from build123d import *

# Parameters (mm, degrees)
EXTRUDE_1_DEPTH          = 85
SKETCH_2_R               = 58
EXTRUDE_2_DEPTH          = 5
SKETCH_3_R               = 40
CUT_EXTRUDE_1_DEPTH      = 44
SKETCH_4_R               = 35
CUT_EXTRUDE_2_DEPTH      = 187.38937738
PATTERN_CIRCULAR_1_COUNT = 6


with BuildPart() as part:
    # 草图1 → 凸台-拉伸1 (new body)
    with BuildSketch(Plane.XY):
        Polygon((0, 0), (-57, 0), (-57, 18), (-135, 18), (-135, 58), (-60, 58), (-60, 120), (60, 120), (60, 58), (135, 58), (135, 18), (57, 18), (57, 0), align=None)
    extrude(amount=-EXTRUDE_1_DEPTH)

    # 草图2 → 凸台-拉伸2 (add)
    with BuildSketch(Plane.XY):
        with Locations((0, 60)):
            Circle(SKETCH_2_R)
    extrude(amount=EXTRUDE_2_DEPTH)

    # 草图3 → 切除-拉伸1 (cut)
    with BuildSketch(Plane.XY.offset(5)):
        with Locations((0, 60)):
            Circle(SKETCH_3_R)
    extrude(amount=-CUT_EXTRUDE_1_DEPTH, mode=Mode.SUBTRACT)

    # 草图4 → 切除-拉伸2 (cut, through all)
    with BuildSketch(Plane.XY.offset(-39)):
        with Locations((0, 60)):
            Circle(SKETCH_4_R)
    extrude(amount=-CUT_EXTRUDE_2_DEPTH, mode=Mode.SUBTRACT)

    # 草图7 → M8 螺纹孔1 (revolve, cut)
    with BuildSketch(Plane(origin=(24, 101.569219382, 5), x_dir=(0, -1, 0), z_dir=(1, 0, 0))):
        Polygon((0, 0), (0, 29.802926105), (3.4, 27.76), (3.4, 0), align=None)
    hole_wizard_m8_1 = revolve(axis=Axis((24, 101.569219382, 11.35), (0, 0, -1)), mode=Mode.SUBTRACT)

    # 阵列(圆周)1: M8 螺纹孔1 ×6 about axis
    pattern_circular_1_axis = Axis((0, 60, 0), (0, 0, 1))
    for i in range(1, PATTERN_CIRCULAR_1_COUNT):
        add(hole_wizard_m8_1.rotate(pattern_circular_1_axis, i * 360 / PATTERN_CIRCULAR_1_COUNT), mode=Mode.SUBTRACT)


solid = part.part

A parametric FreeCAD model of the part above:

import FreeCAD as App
import Part
import Sketcher

V = App.Vector
Q = App.Units.Quantity


def add_polygon(sketch, points):
    """Adds a closed chain of lines whose ends are joined by coincident constraints."""
    first, n = sketch.GeometryCount, len(points)
    for a, b in zip(points, points[1:] + points[:1]):
        sketch.addGeometry(Part.LineSegment(App.Vector(*a, 0), App.Vector(*b, 0)), False)
    for i in range(n):
        sketch.addConstraint(Sketcher.Constraint("Coincident", first + i, 2, first + (i + 1) % n, 1))

doc = App.newDocument("Part")
body = doc.addObject("PartDesign::Body", "Body")

# Sketch on XY plane
sketch1 = body.newObject("Sketcher::SketchObject", "Sketch")
sketch1.AttachmentSupport = (doc.getObject("XY_Plane"), [""])
sketch1.MapMode = "FlatFace"
add_polygon(sketch1, [(-57, 0), (57, 0), (57, 18), (135, 18), (135, 58), (60, 58), (60, 120), (-60, 120), (-60, 58), (-135, 58), (-135, 18), (-57, 18)])  # lines 0-11
sketch1.addConstraint([
    Sketcher.Constraint("Horizontal", 0),
    Sketcher.Constraint("Vertical", 1),
    Sketcher.Constraint("Horizontal", 2),
    Sketcher.Constraint("Vertical", 3),
    Sketcher.Constraint("Horizontal", 4),
    Sketcher.Constraint("Vertical", 5),
    Sketcher.Constraint("Horizontal", 6),
    Sketcher.Constraint("Vertical", 7),
    Sketcher.Constraint("Horizontal", 8),
    Sketcher.Constraint("Vertical", 9),
    Sketcher.Constraint("Horizontal", 10),
    Sketcher.Constraint("Vertical", 11),
    Sketcher.Constraint("Symmetric", 0, 2, 11, 2, -1, 1),
    Sketcher.Constraint("Symmetric", 4, 2, 7, 2, -2),
    Sketcher.Constraint("Symmetric", 2, 2, 9, 2, -2),
    Sketcher.Constraint("DistanceX", 0, 1, 0, 2, Q("114 mm")),
    Sketcher.Constraint("DistanceX", 2, 1, 2, 2, Q("78 mm")),
    Sketcher.Constraint("DistanceX", 4, 2, 4, 1, Q("75 mm")),
    Sketcher.Constraint("DistanceY", 1, 1, 1, 2, Q("18 mm")),
    Sketcher.Constraint("DistanceY", 3, 1, 3, 2, Q("40 mm")),
    Sketcher.Constraint("DistanceY", 5, 1, 5, 2, Q("62 mm")),
])
pad1 = body.newObject("PartDesign::Pad", "Pad")
pad1.Profile = sketch1
pad1.Length = 85
pad1.Reversed = True

# Sketch on XY plane
sketch2 = body.newObject("Sketcher::SketchObject", "Sketch001")
sketch2.AttachmentSupport = (doc.getObject("XY_Plane"), [""])
sketch2.MapMode = "FlatFace"
sketch2.addGeometry(Part.Circle(V(0, 60, 0), V(0, 0, 1), 58), False)
sketch2.addConstraint([
    Sketcher.Constraint("PointOnObject", 0, 3, -2),
    Sketcher.Constraint("Diameter", 0, Q("116 mm")),
    Sketcher.Constraint("DistanceY", -1, 1, 0, 3, Q("60 mm")),
])
pad2 = body.newObject("PartDesign::Pad", "Pad001")
pad2.Profile = sketch2
pad2.Length = 5

# Sketch on XY plane
sketch3 = body.newObject("Sketcher::SketchObject", "Sketch002")
sketch3.AttachmentSupport = (doc.getObject("XY_Plane"), [""])
sketch3.MapMode = "FlatFace"
sketch3.AttachmentOffset = App.Placement(V(0, 0, 5), App.Rotation())
sketch3.addGeometry(Part.Circle(V(0, 60, 0), V(0, 0, 1), 40), False)
sketch3.addConstraint([
    Sketcher.Constraint("PointOnObject", 0, 3, -2),
    Sketcher.Constraint("Diameter", 0, Q("80 mm")),
    Sketcher.Constraint("DistanceY", -1, 1, 0, 3, Q("60 mm")),
])
pocket1 = body.newObject("PartDesign::Pocket", "Pocket")
pocket1.Profile = sketch3
pocket1.Length = 44

# Sketch on XY plane
sketch4 = body.newObject("Sketcher::SketchObject", "Sketch003")
sketch4.AttachmentSupport = (doc.getObject("XY_Plane"), [""])
sketch4.MapMode = "FlatFace"
sketch4.AttachmentOffset = App.Placement(V(0, 0, -39), App.Rotation())
sketch4.addGeometry(Part.Circle(V(0, 60, 0), V(0, 0, 1), 35), False)
sketch4.addConstraint([
    Sketcher.Constraint("PointOnObject", 0, 3, -2),
    Sketcher.Constraint("Diameter", 0, Q("70 mm")),
    Sketcher.Constraint("DistanceY", -1, 1, 0, 3, Q("60 mm")),
])
pocket2 = body.newObject("PartDesign::Pocket", "Pocket001")
pocket2.Profile = sketch4
pocket2.Type = "ThroughAll"

# Sketch on YZ plane
sketch5 = body.newObject("Sketcher::SketchObject", "Sketch004")
sketch5.AttachmentSupport = (doc.getObject("YZ_Plane"), [""])
sketch5.MapMode = "FlatFace"
sketch5.AttachmentOffset = App.Placement(V(0, 0, 24), App.Rotation())
add_polygon(sketch5, [(101.6, -24.8), (101.6, 5), (98.2, 5), (98.2, -22.8)])  # lines 0-3
sketch5.addGeometry(Part.LineSegment(V(101.6, 5, 0), V(101.6, -24.8, 0)), True)  # axis
sketch5.addConstraint([
    Sketcher.Constraint("Vertical", 0),
    Sketcher.Constraint("Horizontal", 1),
    Sketcher.Constraint("Vertical", 2),
    Sketcher.Constraint("Vertical", 4),
    Sketcher.Constraint("Coincident", 4, 1, 0, 2),
    Sketcher.Constraint("Equal", 0, 4),
    Sketcher.Constraint("Angle", 3, Q("-31 deg")),
    Sketcher.Constraint("DistanceX", 1, 2, 1, 1, Q("3.4 mm")),
    Sketcher.Constraint("DistanceY", -1, 1, 0, 2, Q("5 mm")),
    Sketcher.Constraint("DistanceY", 2, 2, 2, 1, Q("27.76 mm")),
    Sketcher.Constraint("DistanceX", -1, 1, 0, 2, Q("101.569219 mm")),
])
groove = body.newObject("PartDesign::Groove", "Groove")
groove.Profile = sketch5
groove.ReferenceAxis = (sketch5, ["Axis0"])
groove.Angle = 360
doc.recompute()

datumline = body.newObject("PartDesign::Line", "DatumLine")
datumline.Placement = App.Placement(V(0, 60, 0), App.Rotation(V(0, 0, 1), V(0, 0, 1)))
polarpattern = body.newObject("PartDesign::PolarPattern", "PolarPattern")
polarpattern.Originals = [groove]
polarpattern.Axis = (datumline, [""])
polarpattern.Angle = 360
polarpattern.Occurrences = 6
body.Tip = polarpattern

doc.recompute()
